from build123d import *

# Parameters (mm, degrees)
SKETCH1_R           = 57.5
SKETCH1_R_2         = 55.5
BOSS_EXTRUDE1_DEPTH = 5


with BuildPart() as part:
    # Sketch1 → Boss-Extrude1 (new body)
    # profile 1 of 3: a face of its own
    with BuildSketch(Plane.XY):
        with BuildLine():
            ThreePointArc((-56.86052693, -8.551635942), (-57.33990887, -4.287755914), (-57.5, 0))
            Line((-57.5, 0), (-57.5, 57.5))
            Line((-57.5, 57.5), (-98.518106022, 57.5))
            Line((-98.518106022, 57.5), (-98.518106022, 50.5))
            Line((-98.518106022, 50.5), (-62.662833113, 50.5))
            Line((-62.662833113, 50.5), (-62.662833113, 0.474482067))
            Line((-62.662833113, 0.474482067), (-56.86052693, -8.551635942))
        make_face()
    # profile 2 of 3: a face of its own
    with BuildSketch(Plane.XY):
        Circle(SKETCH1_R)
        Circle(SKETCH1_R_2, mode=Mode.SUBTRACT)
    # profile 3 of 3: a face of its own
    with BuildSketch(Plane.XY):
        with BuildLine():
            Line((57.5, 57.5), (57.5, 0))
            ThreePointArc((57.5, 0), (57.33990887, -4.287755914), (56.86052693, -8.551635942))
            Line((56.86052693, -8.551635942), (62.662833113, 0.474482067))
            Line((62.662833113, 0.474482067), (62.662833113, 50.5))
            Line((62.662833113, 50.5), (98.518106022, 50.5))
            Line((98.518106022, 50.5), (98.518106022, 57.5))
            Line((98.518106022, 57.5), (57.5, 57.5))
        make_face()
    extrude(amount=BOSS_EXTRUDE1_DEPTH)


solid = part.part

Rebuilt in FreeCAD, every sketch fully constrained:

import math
import FreeCAD as App
import Part
import Sketcher
from FreeCAD import Vector
Q = App.Units.Quantity

doc = App.newDocument("Part")
params = doc.addObject("Spreadsheet::Sheet", "Params")
for row, (alias, value) in enumerate([
    ("sketch1_diameter", "111 mm"),
    ("sketch1_radius", "57.5 mm"),
    ("sketch1_height", "7 mm"),
    ("sketch1_height2", "57.5 mm"),
    ("pad1_length", "5 mm"),
], start=1):
    params.set(f"A{row}", alias)
    params.set(f"B{row}", "=" + value)
    params.setAlias(f"B{row}", alias)

body = doc.addObject("PartDesign::Body", "Body")

# Sketch on XY plane
sketch1 = body.newObject("Sketcher::SketchObject", "Sketch")
sketch1.AttachmentSupport = (doc.getObject("XY_Plane"), [""])
sketch1.MapMode = "FlatFace"
sketch1.addGeometry(Part.LineSegment(Vector(-58, 0, 0), Vector(-58, 58, 0)), False)
sketch1.addGeometry(Part.LineSegment(Vector(-58, 58, 0), Vector(-99, 58, 0)), False)
sketch1.addGeometry(Part.LineSegment(Vector(-99, 58, 0), Vector(-99, 50, 0)), False)
sketch1.addGeometry(Part.LineSegment(Vector(-99, 50, 0), Vector(-63, 50, 0)), False)
sketch1.addGeometry(Part.LineSegment(Vector(-63, 50, 0), Vector(-63, 0, 0)), False)
sketch1.addGeometry(Part.LineSegment(Vector(-63, 0, 0), Vector(-57, -9, 0)), False)
sketch1.addGeometry(Part.ArcOfCircle(Part.Circle(Vector(0, 0, 0), Vector(0, 0, 1), 58), math.radians(-171), math.radians(-9)), False)
sketch1.addGeometry(Part.LineSegment(Vector(57, -9, 0), Vector(63, 0, 0)), False)
sketch1.addGeometry(Part.LineSegment(Vector(63, 0, 0), Vector(63, 50, 0)), False)
sketch1.addGeometry(Part.LineSegment(Vector(63, 50, 0), Vector(99, 50, 0)), False)
sketch1.addGeometry(Part.LineSegment(Vector(99, 50, 0), Vector(99, 58, 0)), False)
sketch1.addGeometry(Part.LineSegment(Vector(99, 58, 0), Vector(58, 58, 0)), False)
sketch1.addGeometry(Part.LineSegment(Vector(58, 58, 0), Vector(58, 0, 0)), False)
sketch1.addGeometry(Part.ArcOfCircle(Part.Circle(Vector(0, 0, 0), Vector(0, 0, 1), 58), math.radians(0), math.radians(180)), False)
sketch1.addGeometry(Part.Circle(Vector(0, 0, 0), Vector(0, 0, 1), 56), False)
sketch1.addConstraint(Sketcher.Constraint("Coincident", 0, 2, 1, 1))
sketch1.addConstraint(Sketcher.Constraint("Coincident", 1, 2, 2, 1))
sketch1.addConstraint(Sketcher.Constraint("Coincident", 2, 2, 3, 1))
sketch1.addConstraint(Sketcher.Constraint("Coincident", 3, 2, 4, 1))
sketch1.addConstraint(Sketcher.Constraint("Coincident", 4, 2, 5, 1))
sketch1.addConstraint(Sketcher.Constraint("Coincident", 5, 2, 6, 1))
sketch1.addConstraint(Sketcher.Constraint("Coincident", 6, 2, 7, 1))
sketch1.addConstraint(Sketcher.Constraint("Coincident", 7, 2, 8, 1))
sketch1.addConstraint(Sketcher.Constraint("Coincident", 8, 2, 9, 1))
sketch1.addConstraint(Sketcher.Constraint("Coincident", 9, 2, 10, 1))
sketch1.addConstraint(Sketcher.Constraint("Coincident", 10, 2, 11, 1))
sketch1.addConstraint(Sketcher.Constraint("Coincident", 11, 2, 12, 1))
sketch1.addConstraint(Sketcher.Constraint("Tangent", 12, 2, 13, 1))
sketch1.addConstraint(Sketcher.Constraint("Tangent", 13, 2, 0, 1))
sketch1.addConstraint(Sketcher.Constraint("Vertical", 0))
sketch1.addConstraint(Sketcher.Constraint("Horizontal", 1))
sketch1.addConstraint(Sketcher.Constraint("Vertical", 2))
sketch1.addConstraint(Sketcher.Constraint("Horizontal", 3))
sketch1.addConstraint(Sketcher.Constraint("Vertical", 4))
sketch1.addConstraint(Sketcher.Constraint("Vertical", 8))
sketch1.addConstraint(Sketcher.Constraint("Horizontal", 9))
sketch1.addConstraint(Sketcher.Constraint("Vertical", 10))
sketch1.addConstraint(Sketcher.Constraint("Horizontal", 11))
sketch1.addConstraint(Sketcher.Constraint("Vertical", 12))
sketch1.addConstraint(Sketcher.Constraint("Coincident", 6, 3, -1, 1))
sketch1.addConstraint(Sketcher.Constraint("Coincident", 13, 3, -1, 1))
sketch1.addConstraint(Sketcher.Constraint("Coincident", 14, 3, -1, 1))
sketch1.addConstraint(Sketcher.Constraint("Equal", 6, 13))
sketch1.addConstraint(Sketcher.Constraint("Symmetric", 4, 2, 7, 2, -2))
sketch1.addConstraint(Sketcher.Constraint("Symmetric", 2, 2, 9, 2, -2))
sketch1.addConstraint(Sketcher.Constraint("Horizontal", 5, 2, 6, 2))
sketch1.addConstraint(Sketcher.Constraint("Horizontal", 1, 2, 10, 2))
sketch1.addConstraint(Sketcher.Constraint("Diameter", 14, Q("111 mm")))
sketch1.addConstraint(Sketcher.Constraint("Radius", 6, Q("57.5 mm")))
sketch1.addConstraint(Sketcher.Constraint("DistanceY", 2, 2, 2, 1, Q("7 mm")))
sketch1.addConstraint(Sketcher.Constraint("DistanceY", 0, 1, 0, 2, Q("57.5 mm")))
sketch1.addConstraint(Sketcher.Constraint("DistanceX", 1, 2, 1, 1, Q("41.018106 mm")))
sketch1.addConstraint(Sketcher.Constraint("DistanceX", 3, 1, 3, 2, Q("35.855273 mm")))
sketch1.addConstraint(Sketcher.Constraint("DistanceY", 4, 2, 4, 1, Q("50.025518 mm")))
sketch1.addConstraint(Sketcher.Constraint("DistanceY", 5, 2, 4, 2, Q("9.026118 mm")))
sketch1.setExpression("Constraints[32]", "Params.sketch1_diameter")
sketch1.setExpression("Constraints[33]", "Params.sketch1_radius")
sketch1.setExpression("Constraints[34]", "Params.sketch1_height")
sketch1.setExpression("Constraints[35]", "Params.sketch1_height2")
pad1 = body.newObject("PartDesign::Pad", "Pad")
pad1.Profile = sketch1
pad1.setExpression("Length", "Params.pad1_length")

doc.recompute()
